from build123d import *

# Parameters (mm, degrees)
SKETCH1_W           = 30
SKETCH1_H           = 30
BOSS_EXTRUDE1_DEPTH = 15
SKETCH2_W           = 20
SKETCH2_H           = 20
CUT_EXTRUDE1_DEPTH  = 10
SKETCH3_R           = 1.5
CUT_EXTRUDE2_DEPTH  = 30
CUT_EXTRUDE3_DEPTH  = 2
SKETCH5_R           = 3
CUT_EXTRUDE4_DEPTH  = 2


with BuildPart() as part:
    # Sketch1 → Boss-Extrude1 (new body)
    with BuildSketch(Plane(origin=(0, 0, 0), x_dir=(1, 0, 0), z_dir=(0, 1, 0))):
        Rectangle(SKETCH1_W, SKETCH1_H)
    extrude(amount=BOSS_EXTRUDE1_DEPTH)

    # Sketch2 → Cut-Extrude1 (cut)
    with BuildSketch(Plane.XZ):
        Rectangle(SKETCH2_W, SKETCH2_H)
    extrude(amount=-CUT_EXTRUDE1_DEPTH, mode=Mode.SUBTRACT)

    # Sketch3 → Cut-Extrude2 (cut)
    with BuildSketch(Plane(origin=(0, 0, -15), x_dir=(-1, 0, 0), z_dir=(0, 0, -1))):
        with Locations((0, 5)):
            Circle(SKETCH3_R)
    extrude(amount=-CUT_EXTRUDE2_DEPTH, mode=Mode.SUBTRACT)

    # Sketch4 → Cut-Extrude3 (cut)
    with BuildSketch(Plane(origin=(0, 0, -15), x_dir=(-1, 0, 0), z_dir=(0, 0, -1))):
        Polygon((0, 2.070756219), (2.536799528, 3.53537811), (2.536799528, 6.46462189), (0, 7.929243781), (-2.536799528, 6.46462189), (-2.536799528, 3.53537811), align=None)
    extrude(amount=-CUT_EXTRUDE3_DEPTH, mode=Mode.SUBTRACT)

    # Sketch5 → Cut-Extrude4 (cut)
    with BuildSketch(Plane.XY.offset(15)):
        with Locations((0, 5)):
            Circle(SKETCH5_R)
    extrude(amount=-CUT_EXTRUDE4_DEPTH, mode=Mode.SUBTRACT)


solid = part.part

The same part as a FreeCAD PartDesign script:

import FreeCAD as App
import Part
import Sketcher
Q = App.Units.Quantity

doc = App.newDocument("Part")
body = doc.addObject("PartDesign::Body", "Body")

# Sketch on XZ plane
sketch1 = body.newObject("Sketcher::SketchObject", "Sketch")
sketch1.AttachmentSupport = (doc.getObject("XZ_Plane"), [""])
sketch1.MapMode = "FlatFace"
sketch1.addGeometry(Part.LineSegment(App.Vector(-15, -15, 0), App.Vector(-15, 15, 0)), False)
sketch1.addGeometry(Part.LineSegment(App.Vector(-15, 15, 0), App.Vector(15, 15, 0)), False)
sketch1.addGeometry(Part.LineSegment(App.Vector(15, 15, 0), App.Vector(15, -15, 0)), False)
sketch1.addGeometry(Part.LineSegment(App.Vector(15, -15, 0), App.Vector(-15, -15, 0)), False)
sketch1.addConstraint(Sketcher.Constraint("Coincident", 0, 2, 1, 1))
sketch1.addConstraint(Sketcher.Constraint("Coincident", 1, 2, 2, 1))
sketch1.addConstraint(Sketcher.Constraint("Coincident", 2, 2, 3, 1))
sketch1.addConstraint(Sketcher.Constraint("Coincident", 3, 2, 0, 1))
sketch1.addConstraint(Sketcher.Constraint("Vertical", 0))
sketch1.addConstraint(Sketcher.Constraint("Horizontal", 1))
sketch1.addConstraint(Sketcher.Constraint("Vertical", 2))
sketch1.addConstraint(Sketcher.Constraint("Horizontal", 3))
sketch1.addConstraint(Sketcher.Constraint("Symmetric", 0, 2, 2, 2, -1, 1))
sketch1.addConstraint(Sketcher.Constraint("Equal", 3, 0))
sketch1.addConstraint(Sketcher.Constraint("DistanceX", 1, 1, 1, 2, Q("30 mm")))
pad1 = body.newObject("PartDesign::Pad", "Pad")
pad1.Profile = sketch1
pad1.Length = 15
pad1.Reversed = True

# Sketch on XZ plane
sketch2 = body.newObject("Sketcher::SketchObject", "Sketch001")
sketch2.AttachmentSupport = (doc.getObject("XZ_Plane"), [""])
sketch2.MapMode = "FlatFace"
sketch2.addGeometry(Part.LineSegment(App.Vector(-10, 10, 0), App.Vector(-10, -10, 0)), False)
sketch2.addGeometry(Part.LineSegment(App.Vector(-10, -10, 0), App.Vector(10, -10, 0)), False)
sketch2.addGeometry(Part.LineSegment(App.Vector(10, -10, 0), App.Vector(10, 10, 0)), False)
sketch2.addGeometry(Part.LineSegment(App.Vector(10, 10, 0), App.Vector(-10, 10, 0)), False)
sketch2.addConstraint(Sketcher.Constraint("Coincident", 0, 2, 1, 1))
sketch2.addConstraint(Sketcher.Constraint("Coincident", 1, 2, 2, 1))
sketch2.addConstraint(Sketcher.Constraint("Coincident", 2, 2, 3, 1))
sketch2.addConstraint(Sketcher.Constraint("Coincident", 3, 2, 0, 1))
sketch2.addConstraint(Sketcher.Constraint("Vertical", 0))
sketch2.addConstraint(Sketcher.Constraint("Horizontal", 1))
sketch2.addConstraint(Sketcher.Constraint("Vertical", 2))
sketch2.addConstraint(Sketcher.Constraint("Horizontal", 3))
sketch2.addConstraint(Sketcher.Constraint("Symmetric", 0, 2, 2, 2, -1, 1))
sketch2.addConstraint(Sketcher.Constraint("Equal", 3, 0))
sketch2.addConstraint(Sketcher.Constraint("DistanceX", 1, 1, 1, 2, Q("20 mm")))
pocket1 = body.newObject("PartDesign::Pocket", "Pocket")
pocket1.Profile = sketch2
pocket1.Length = 10

# Sketch on XY plane
sketch3 = body.newObject("Sketcher::SketchObject", "Sketch002")
sketch3.AttachmentSupport = (doc.getObject("XY_Plane"), [""])
sketch3.MapMode = "FlatFace"
sketch3.AttachmentOffset = App.Placement(App.Vector(0, 0, -15), App.Rotation())
sketch3.addGeometry(Part.Circle(App.Vector(0, 5, 0), App.Vector(0, 0, 1), 1.5), False)
sketch3.addConstraint(Sketcher.Constraint("PointOnObject", 0, 3, -2))
sketch3.addConstraint(Sketcher.Constraint("Diameter", 0, Q("3 mm")))
sketch3.addConstraint(Sketcher.Constraint("DistanceY", -1, 1, 0, 3, Q("5 mm")))
pocket2 = body.newObject("PartDesign::Pocket", "Pocket001")
pocket2.Profile = sketch3
pocket2.Length = 30
pocket2.Reversed = True

# Sketch on XY plane
sketch4 = body.newObject("Sketcher::SketchObject", "Sketch003")
sketch4.AttachmentSupport = (doc.getObject("XY_Plane"), [""])
sketch4.MapMode = "FlatFace"
sketch4.AttachmentOffset = App.Placement(App.Vector(0, 0, -15), App.Rotation())
sketch4.addGeometry(Part.LineSegment(App.Vector(0, 2.1, 0), App.Vector(-2.5, 3.5, 0)), False)
sketch4.addGeometry(Part.LineSegment(App.Vector(-2.5, 3.5, 0), App.Vector(-2.5, 6.5, 0)), False)
sketch4.addGeometry(Part.LineSegment(App.Vector(-2.5, 6.5, 0), App.Vector(0, 7.9, 0)), False)
sketch4.addGeometry(Part.LineSegment(App.Vector(0, 7.9, 0), App.Vector(2.5, 6.5, 0)), False)
sketch4.addGeometry(Part.LineSegment(App.Vector(2.5, 6.5, 0), App.Vector(2.5, 3.5, 0)), False)
sketch4.addGeometry(Part.LineSegment(App.Vector(2.5, 3.5, 0), App.Vector(0, 2.1, 0)), False)
sketch4.addConstraint(Sketcher.Constraint("Coincident", 0, 2, 1, 1))
sketch4.addConstraint(Sketcher.Constraint("Coincident", 1, 2, 2, 1))
sketch4.addConstraint(Sketcher.Constraint("Coincident", 2, 2, 3, 1))
sketch4.addConstraint(Sketcher.Constraint("Coincident", 3, 2, 4, 1))
sketch4.addConstraint(Sketcher.Constraint("Coincident", 4, 2, 5, 1))
sketch4.addConstraint(Sketcher.Constraint("Coincident", 5, 2, 0, 1))
sketch4.addConstraint(Sketcher.Constraint("Vertical", 1))
sketch4.addConstraint(Sketcher.Constraint("Vertical", 4))
sketch4.addConstraint(Sketcher.Constraint("Symmetric", 1, 2, 3, 2, -2))
sketch4.addConstraint(Sketcher.Constraint("PointOnObject", 2, 2, -2))
sketch4.addConstraint(Sketcher.Constraint("PointOnObject", 5, 2, -2))
sketch4.addConstraint(Sketcher.Constraint("Parallel", 0, 3))
sketch4.addConstraint(Sketcher.Constraint("Parallel", 2, 5))
sketch4.addConstraint(Sketcher.Constraint("Angle", 0, Q("150 deg")))
sketch4.addConstraint(Sketcher.Constraint("DistanceX", 0, 2, -1, 1, Q("2.5368 mm")))
sketch4.addConstraint(Sketcher.Constraint("DistanceY", 1, 1, 1, 2, Q("2.929244 mm")))
sketch4.addConstraint(Sketcher.Constraint("DistanceY", -1, 1, 0, 2, Q("3.535378 mm")))
pocket3 = body.newObject("PartDesign::Pocket", "Pocket002")
pocket3.Profile = sketch4
pocket3.Length = 2
pocket3.Reversed = True

# Sketch on XY plane
sketch5 = body.newObject("Sketcher::SketchObject", "Sketch004")
sketch5.AttachmentSupport = (doc.getObject("XY_Plane"), [""])
sketch5.MapMode = "FlatFace"
sketch5.AttachmentOffset = App.Placement(App.Vector(0, 0, 15), App.Rotation())
sketch5.addGeometry(Part.Circle(App.Vector(0, 5, 0), App.Vector(0, 0, 1), 3), False)
sketch5.addConstraint(Sketcher.Constraint("PointOnObject", 0, 3, -2))
sketch5.addConstraint(Sketcher.Constraint("Diameter", 0, Q("6 mm")))
sketch5.addConstraint(Sketcher.Constraint("DistanceY", -1, 1, 0, 3, Q("5 mm")))
pocket4 = body.newObject("PartDesign::Pocket", "Pocket003")
pocket4.Profile = sketch5
pocket4.Length = 2

doc.recompute()
